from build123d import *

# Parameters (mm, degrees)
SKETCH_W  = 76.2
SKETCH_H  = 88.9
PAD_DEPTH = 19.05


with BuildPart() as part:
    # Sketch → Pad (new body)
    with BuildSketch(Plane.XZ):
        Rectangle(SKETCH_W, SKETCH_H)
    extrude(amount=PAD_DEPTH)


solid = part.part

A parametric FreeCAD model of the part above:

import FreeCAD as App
import Part
import Sketcher
from FreeCAD import Vector
Q = App.Units.Quantity


def add_polygon(sketch, points):
    """Adds a closed chain of lines whose ends are joined by coincident constraints."""
    first, n = sketch.GeometryCount, len(points)
    for a, b in zip(points, points[1:] + points[:1]):
        sketch.addGeometry(Part.LineSegment(App.Vector(*a, 0), App.Vector(*b, 0)), False)
    for i in range(n):
        sketch.addConstraint(Sketcher.Constraint("Coincident", first + i, 2, first + (i + 1) % n, 1))

doc = App.newDocument("Part")
body = doc.addObject("PartDesign::Body", "Body")

sketch1 = body.newObject("Sketcher::SketchObject", "Sketch")
sketch1.AttachmentSupport = (doc.getObject("XZ_Plane"), [""])
sketch1.MapMode = "FlatFace"
add_polygon(sketch1, [(-38, 44), (-38, -44), (38, -44), (38, 44)])
sketch1.addConstraint(Sketcher.Constraint("Vertical", 0))
sketch1.addConstraint(Sketcher.Constraint("Horizontal", 1))
sketch1.addConstraint(Sketcher.Constraint("Vertical", 2))
sketch1.addConstraint(Sketcher.Constraint("Horizontal", 3))
sketch1.addConstraint(Sketcher.Constraint("Symmetric", 0, 2, 2, 2, -1, 1))
sketch1.addConstraint(Sketcher.Constraint("DistanceX", 1, 1, 1, 2, Q("3 in")))
sketch1.addConstraint(Sketcher.Constraint("DistanceY", 0, 2, 0, 1, Q("3.5 in")))
pad1 = body.newObject("PartDesign::Pad", "Pad")
pad1.Profile = sketch1
pad1.Length = Q("0.75 in")

doc.recompute()
